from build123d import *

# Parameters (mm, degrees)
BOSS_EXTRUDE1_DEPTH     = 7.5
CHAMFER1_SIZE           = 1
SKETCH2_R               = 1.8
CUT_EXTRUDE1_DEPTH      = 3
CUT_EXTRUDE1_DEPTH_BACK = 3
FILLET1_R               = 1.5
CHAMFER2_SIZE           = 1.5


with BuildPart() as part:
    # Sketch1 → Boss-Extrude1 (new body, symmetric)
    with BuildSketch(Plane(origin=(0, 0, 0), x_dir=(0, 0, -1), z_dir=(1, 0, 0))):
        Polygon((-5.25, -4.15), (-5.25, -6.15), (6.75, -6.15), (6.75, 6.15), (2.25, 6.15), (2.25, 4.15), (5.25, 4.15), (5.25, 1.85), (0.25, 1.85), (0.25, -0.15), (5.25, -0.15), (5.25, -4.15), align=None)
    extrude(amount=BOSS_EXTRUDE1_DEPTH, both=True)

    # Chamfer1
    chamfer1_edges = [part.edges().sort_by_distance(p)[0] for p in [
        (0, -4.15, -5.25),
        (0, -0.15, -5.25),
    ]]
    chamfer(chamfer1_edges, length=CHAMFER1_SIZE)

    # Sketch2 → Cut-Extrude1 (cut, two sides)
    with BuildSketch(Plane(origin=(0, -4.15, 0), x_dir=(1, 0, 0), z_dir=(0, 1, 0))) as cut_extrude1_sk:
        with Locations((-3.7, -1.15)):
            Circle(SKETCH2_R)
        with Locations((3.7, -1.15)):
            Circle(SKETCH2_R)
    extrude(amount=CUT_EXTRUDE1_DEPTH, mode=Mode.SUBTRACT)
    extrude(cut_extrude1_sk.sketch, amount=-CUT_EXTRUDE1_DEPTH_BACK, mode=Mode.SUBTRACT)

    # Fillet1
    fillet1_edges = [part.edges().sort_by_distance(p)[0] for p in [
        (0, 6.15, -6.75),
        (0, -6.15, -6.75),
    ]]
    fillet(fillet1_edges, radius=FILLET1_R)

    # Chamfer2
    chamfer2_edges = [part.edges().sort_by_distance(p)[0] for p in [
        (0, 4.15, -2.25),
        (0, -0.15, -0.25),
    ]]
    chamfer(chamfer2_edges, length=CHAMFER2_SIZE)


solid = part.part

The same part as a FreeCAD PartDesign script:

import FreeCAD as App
import Part
import Sketcher


def edges_at(feature, points):
    """Names of the edges that pass closest to the given points."""
    edges = feature.Shape.Edges
    near = lambda p: min(range(len(edges)), key=lambda i: edges[i].distToShape(Part.Vertex(*p))[0])
    return sorted({f"Edge{near(p) + 1}" for p in points})


def add_polygon(sketch, points):
    """Adds a closed chain of lines whose ends are joined by coincident constraints."""
    first, n = sketch.GeometryCount, len(points)
    for a, b in zip(points, points[1:] + points[:1]):
        sketch.addGeometry(Part.LineSegment(App.Vector(*a, 0), App.Vector(*b, 0)), False)
    for i in range(n):
        sketch.addConstraint(Sketcher.Constraint("Coincident", first + i, 2, first + (i + 1) % n, 1))

doc = App.newDocument("Part")
body = doc.addObject("PartDesign::Body", "Body")

# Sketch on YZ plane
sketch1 = doc.addObject("Sketcher::SketchObject", "Sketch")
body.addObject(sketch1)
sketch1.AttachmentSupport = (doc.YZ_Plane, [""])
sketch1.MapMode = "FlatFace"
add_polygon(sketch1, [(-4.2, 5.2), (-6.2, 5.2), (-6.2, -6.8), (6.2, -6.8), (6.2, -2.2), (4.2, -2.2), (4.2, -5.2), (1.9, -5.2), (1.9, -0.2), (-0.1, -0.2), (-0.1, -5.2), (-4.2, -5.2)])  # lines 0-11
sketch1.addConstraint([
    Sketcher.Constraint("Horizontal", 0),
    Sketcher.Constraint("Vertical", 1),
    Sketcher.Constraint("Horizontal", 2),
    Sketcher.Constraint("Vertical", 3),
    Sketcher.Constraint("Horizontal", 4),
    Sketcher.Constraint("Vertical", 5),
    Sketcher.Constraint("Horizontal", 6),
    Sketcher.Constraint("Vertical", 7),
    Sketcher.Constraint("Horizontal", 8),
    Sketcher.Constraint("Vertical", 9),
    Sketcher.Constraint("Horizontal", 10),
    Sketcher.Constraint("Vertical", 11),
    Sketcher.Constraint("Symmetric", 5, 2, 11, 2, -1, 1),
    Sketcher.Constraint("Horizontal", 6, 2, 9, 2),
    Sketcher.Constraint("Equal", 0, 4),
    Sketcher.Constraint("Equal", 4, 8),
    Sketcher.Constraint("DistanceX", 0, 2, 0, 1, 2.0),
    Sketcher.Constraint("DistanceX", 10, 2, 10, 1, 4.0),
    Sketcher.Constraint("DistanceY", 1, 2, 1, 1, 12.0),
    Sketcher.Constraint("DistanceY", 5, 2, 5, 1, 3.0),
    Sketcher.Constraint("DistanceY", 7, 1, 7, 2, 5.0),
    Sketcher.Constraint("DistanceX", 2, 1, 2, 2, 12.3),
    Sketcher.Constraint("DistanceY", 3, 1, 3, 2, 4.5),
])
pad1 = doc.addObject("PartDesign::Pad", "Pad")
body.addObject(pad1)
pad1.Profile = sketch1
pad1.Length = 15
pad1.Midplane = True
doc.recompute()

chamfer = doc.addObject("PartDesign::Chamfer", "Chamfer")
body.addObject(chamfer)
chamfer.Base = (pad1, edges_at(pad1, [(0, -4.15, -5.25), (0, -0.15, -5.25)]))
chamfer.Size = 1

# Sketch on XZ plane
sketch2 = doc.addObject("Sketcher::SketchObject", "Sketch001")
body.addObject(sketch2)
sketch2.AttachmentSupport = (doc.XZ_Plane, [""])
sketch2.MapMode = "FlatFace"
sketch2.AttachmentOffset = App.Placement(App.Vector(0, 0, 4.15), App.Rotation())
sketch2.addGeometry([
    Part.Circle(App.Vector(-3.7, 1.1, 0), App.Vector(0, 0, 1), 1.8),
    Part.Circle(App.Vector(3.7, 1.1, 0), App.Vector(0, 0, 1), 1.8),
], False)
sketch2.addConstraint([
    Sketcher.Constraint("Equal", 0, 1),
    Sketcher.Constraint("Symmetric", 0, 3, 1, 3, -2),
    Sketcher.Constraint("Diameter", 0, 3.6),
    Sketcher.Constraint("DistanceX", 0, 3, -1, 1, 3.7),
    Sketcher.Constraint("DistanceY", -1, 1, 0, 3, 1.15),
])
pocket1 = doc.addObject("PartDesign::Pocket", "Pocket")
body.addObject(pocket1)
pocket1.Profile = sketch2
pocket1.Type = "TwoLengths"
pocket1.Length = 3
pocket1.Length2 = 3
doc.recompute()

fillet = doc.addObject("PartDesign::Fillet", "Fillet")
body.addObject(fillet)
fillet.Base = (pocket1, edges_at(pocket1, [(0, 6.15, -6.75), (0, -6.15, -6.75)]))
fillet.Radius = 1.5
doc.recompute()

chamfer2 = doc.addObject("PartDesign::Chamfer", "Chamfer001")
body.addObject(chamfer2)
chamfer2.Base = (fillet, edges_at(fillet, [(0, 4.15, -2.25), (0, -0.15, -0.25)]))
chamfer2.Size = 1.5

doc.recompute()
